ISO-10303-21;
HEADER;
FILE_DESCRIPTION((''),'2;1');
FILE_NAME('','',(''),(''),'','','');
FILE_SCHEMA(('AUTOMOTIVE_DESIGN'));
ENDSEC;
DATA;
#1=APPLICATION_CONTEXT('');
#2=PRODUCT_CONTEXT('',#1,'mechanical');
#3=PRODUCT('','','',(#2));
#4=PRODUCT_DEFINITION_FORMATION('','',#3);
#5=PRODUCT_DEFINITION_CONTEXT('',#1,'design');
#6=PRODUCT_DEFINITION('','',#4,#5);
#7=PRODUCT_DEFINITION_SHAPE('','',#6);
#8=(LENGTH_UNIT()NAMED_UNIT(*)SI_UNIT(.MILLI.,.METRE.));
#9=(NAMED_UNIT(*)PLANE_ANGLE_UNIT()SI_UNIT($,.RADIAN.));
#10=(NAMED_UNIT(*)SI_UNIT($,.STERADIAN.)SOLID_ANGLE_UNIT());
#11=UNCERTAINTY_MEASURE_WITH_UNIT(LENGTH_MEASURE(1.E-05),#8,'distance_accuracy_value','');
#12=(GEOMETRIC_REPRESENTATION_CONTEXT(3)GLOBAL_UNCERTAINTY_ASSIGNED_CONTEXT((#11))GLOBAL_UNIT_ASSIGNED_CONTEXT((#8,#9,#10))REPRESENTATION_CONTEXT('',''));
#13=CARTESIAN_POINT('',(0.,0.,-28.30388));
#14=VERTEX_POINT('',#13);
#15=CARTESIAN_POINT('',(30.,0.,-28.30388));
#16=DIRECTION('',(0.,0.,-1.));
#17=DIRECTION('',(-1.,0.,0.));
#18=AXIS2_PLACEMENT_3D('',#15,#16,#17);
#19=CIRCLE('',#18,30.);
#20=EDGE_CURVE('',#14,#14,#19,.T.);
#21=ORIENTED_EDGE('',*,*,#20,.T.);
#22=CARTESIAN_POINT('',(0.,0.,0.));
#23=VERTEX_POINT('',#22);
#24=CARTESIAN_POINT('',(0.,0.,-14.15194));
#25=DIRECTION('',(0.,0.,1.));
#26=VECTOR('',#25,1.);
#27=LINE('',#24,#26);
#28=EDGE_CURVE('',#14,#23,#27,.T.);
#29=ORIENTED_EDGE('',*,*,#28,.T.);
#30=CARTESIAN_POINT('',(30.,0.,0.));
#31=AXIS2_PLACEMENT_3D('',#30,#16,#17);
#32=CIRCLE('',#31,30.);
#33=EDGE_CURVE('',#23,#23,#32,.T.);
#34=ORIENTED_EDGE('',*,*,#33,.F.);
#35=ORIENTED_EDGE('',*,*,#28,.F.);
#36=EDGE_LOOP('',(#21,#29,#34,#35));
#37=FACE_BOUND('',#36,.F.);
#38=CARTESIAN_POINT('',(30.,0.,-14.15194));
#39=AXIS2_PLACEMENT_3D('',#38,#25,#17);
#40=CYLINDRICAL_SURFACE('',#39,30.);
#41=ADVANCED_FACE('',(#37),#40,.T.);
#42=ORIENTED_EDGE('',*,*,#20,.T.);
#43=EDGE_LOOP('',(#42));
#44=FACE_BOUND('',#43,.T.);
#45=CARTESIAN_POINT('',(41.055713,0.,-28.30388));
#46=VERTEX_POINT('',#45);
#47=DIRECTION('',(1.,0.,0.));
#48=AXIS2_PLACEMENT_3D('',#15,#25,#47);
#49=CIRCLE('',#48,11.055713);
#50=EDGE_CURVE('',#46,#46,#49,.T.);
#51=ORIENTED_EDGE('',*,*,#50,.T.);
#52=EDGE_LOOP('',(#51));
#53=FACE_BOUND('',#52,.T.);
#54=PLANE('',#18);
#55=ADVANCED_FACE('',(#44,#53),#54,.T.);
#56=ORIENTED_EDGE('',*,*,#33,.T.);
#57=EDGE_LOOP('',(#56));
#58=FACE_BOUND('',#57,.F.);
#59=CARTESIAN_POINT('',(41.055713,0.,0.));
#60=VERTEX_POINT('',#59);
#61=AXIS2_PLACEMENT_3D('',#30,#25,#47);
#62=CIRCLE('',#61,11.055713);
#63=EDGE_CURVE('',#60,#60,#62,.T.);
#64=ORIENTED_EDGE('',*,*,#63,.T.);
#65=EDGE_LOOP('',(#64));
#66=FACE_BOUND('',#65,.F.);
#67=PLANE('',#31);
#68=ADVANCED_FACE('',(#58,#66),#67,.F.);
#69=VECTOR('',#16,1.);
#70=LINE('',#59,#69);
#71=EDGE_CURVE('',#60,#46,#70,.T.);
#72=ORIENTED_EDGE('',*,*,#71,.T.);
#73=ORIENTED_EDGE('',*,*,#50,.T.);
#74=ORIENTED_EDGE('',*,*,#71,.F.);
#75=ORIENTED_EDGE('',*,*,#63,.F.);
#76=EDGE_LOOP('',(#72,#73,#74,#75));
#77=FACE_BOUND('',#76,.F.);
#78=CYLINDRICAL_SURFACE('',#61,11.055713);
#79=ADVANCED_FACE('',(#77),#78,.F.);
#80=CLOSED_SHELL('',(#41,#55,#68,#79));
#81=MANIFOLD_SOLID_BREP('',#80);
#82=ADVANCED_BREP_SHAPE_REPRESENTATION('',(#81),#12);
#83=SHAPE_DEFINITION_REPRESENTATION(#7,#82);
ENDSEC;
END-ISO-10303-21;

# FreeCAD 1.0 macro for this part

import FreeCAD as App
import Part
import Sketcher
from FreeCAD import Vector
Q = App.Units.Quantity


def add_polygon(sketch, points):
    """Adds a closed chain of lines whose ends are joined by coincident constraints."""
    first, n = sketch.GeometryCount, len(points)
    for a, b in zip(points, points[1:] + points[:1]):
        sketch.addGeometry(Part.LineSegment(App.Vector(*a, 0), App.Vector(*b, 0)), False)
    for i in range(n):
        sketch.addConstraint(Sketcher.Constraint("Coincident", first + i, 2, first + (i + 1) % n, 1))

doc = App.newDocument("Part")
params = doc.addObject("Spreadsheet::Sheet", "Params")
for row, (alias, value) in enumerate([
    ("sketch1_width", "30 mm"),
    ("revolution_angle", "360 deg"),
    ("pocket1_length", "40 mm"),
], start=1):
    params.set(f"A{row}", alias)
    params.set(f"B{row}", "=" + value)
    params.setAlias(f"B{row}", alias)

body = doc.addObject("PartDesign::Body", "Body")

sketch1 = doc.addObject("Sketcher::SketchObject", "Sketch")
body.addObject(sketch1)
sketch1.AttachmentSupport = (doc.XZ_Plane, [""])
sketch1.MapMode = "FlatFace"
add_polygon(sketch1, [(0, 0), (0, -28), (30, -28), (30, 0)])
sketch1.addGeometry(Part.LineSegment(Vector(30, 0, 0), Vector(30, -28, 0)), True)
sketch1.addConstraint([
    Sketcher.Constraint("Vertical", 0),
    Sketcher.Constraint("Horizontal", 1),
    Sketcher.Constraint("Vertical", 2),
    Sketcher.Constraint("Horizontal", 3),
    Sketcher.Constraint("Vertical", 4),
    Sketcher.Constraint("Coincident", 3, 2, -1, 1),
    Sketcher.Constraint("Coincident", 4, 1, 2, 2),
    Sketcher.Constraint("Horizontal", 0, 2, 4, 2),
    Sketcher.Constraint("DistanceX", 1, 1, 1, 2, Q("30 mm")),
    Sketcher.Constraint("DistanceY", 0, 2, 0, 1, Q("28.30388 mm")),
])
sketch1.setExpression("Constraints[12]", "Params.sketch1_width")
revolution = doc.addObject("PartDesign::Revolution", "Revolution")
body.addObject(revolution)
revolution.Profile = sketch1
revolution.ReferenceAxis = (sketch1, ["Axis0"])
revolution.setExpression("Angle", "Params.revolution_angle")

sketch2 = doc.addObject("Sketcher::SketchObject", "Sketch001")
body.addObject(sketch2)
sketch2.AttachmentSupport = (doc.XY_Plane, [""])
sketch2.MapMode = "FlatFace"
sketch2.addGeometry(Part.Circle(Vector(30, 0, 0), Vector(0, 0, 1), 11), False)
sketch2.addConstraint([
    Sketcher.Constraint("PointOnObject", 0, 3, -1),
    Sketcher.Constraint("DistanceX", -1, 1, 0, 3, Q("30 mm")),
    Sketcher.Constraint("Diameter", 0, Q("22.111426 mm")),
])
pocket1 = doc.addObject("PartDesign::Pocket", "Pocket")
body.addObject(pocket1)
pocket1.Profile = sketch2
pocket1.setExpression("Length", "Params.pocket1_length")

doc.recompute()
